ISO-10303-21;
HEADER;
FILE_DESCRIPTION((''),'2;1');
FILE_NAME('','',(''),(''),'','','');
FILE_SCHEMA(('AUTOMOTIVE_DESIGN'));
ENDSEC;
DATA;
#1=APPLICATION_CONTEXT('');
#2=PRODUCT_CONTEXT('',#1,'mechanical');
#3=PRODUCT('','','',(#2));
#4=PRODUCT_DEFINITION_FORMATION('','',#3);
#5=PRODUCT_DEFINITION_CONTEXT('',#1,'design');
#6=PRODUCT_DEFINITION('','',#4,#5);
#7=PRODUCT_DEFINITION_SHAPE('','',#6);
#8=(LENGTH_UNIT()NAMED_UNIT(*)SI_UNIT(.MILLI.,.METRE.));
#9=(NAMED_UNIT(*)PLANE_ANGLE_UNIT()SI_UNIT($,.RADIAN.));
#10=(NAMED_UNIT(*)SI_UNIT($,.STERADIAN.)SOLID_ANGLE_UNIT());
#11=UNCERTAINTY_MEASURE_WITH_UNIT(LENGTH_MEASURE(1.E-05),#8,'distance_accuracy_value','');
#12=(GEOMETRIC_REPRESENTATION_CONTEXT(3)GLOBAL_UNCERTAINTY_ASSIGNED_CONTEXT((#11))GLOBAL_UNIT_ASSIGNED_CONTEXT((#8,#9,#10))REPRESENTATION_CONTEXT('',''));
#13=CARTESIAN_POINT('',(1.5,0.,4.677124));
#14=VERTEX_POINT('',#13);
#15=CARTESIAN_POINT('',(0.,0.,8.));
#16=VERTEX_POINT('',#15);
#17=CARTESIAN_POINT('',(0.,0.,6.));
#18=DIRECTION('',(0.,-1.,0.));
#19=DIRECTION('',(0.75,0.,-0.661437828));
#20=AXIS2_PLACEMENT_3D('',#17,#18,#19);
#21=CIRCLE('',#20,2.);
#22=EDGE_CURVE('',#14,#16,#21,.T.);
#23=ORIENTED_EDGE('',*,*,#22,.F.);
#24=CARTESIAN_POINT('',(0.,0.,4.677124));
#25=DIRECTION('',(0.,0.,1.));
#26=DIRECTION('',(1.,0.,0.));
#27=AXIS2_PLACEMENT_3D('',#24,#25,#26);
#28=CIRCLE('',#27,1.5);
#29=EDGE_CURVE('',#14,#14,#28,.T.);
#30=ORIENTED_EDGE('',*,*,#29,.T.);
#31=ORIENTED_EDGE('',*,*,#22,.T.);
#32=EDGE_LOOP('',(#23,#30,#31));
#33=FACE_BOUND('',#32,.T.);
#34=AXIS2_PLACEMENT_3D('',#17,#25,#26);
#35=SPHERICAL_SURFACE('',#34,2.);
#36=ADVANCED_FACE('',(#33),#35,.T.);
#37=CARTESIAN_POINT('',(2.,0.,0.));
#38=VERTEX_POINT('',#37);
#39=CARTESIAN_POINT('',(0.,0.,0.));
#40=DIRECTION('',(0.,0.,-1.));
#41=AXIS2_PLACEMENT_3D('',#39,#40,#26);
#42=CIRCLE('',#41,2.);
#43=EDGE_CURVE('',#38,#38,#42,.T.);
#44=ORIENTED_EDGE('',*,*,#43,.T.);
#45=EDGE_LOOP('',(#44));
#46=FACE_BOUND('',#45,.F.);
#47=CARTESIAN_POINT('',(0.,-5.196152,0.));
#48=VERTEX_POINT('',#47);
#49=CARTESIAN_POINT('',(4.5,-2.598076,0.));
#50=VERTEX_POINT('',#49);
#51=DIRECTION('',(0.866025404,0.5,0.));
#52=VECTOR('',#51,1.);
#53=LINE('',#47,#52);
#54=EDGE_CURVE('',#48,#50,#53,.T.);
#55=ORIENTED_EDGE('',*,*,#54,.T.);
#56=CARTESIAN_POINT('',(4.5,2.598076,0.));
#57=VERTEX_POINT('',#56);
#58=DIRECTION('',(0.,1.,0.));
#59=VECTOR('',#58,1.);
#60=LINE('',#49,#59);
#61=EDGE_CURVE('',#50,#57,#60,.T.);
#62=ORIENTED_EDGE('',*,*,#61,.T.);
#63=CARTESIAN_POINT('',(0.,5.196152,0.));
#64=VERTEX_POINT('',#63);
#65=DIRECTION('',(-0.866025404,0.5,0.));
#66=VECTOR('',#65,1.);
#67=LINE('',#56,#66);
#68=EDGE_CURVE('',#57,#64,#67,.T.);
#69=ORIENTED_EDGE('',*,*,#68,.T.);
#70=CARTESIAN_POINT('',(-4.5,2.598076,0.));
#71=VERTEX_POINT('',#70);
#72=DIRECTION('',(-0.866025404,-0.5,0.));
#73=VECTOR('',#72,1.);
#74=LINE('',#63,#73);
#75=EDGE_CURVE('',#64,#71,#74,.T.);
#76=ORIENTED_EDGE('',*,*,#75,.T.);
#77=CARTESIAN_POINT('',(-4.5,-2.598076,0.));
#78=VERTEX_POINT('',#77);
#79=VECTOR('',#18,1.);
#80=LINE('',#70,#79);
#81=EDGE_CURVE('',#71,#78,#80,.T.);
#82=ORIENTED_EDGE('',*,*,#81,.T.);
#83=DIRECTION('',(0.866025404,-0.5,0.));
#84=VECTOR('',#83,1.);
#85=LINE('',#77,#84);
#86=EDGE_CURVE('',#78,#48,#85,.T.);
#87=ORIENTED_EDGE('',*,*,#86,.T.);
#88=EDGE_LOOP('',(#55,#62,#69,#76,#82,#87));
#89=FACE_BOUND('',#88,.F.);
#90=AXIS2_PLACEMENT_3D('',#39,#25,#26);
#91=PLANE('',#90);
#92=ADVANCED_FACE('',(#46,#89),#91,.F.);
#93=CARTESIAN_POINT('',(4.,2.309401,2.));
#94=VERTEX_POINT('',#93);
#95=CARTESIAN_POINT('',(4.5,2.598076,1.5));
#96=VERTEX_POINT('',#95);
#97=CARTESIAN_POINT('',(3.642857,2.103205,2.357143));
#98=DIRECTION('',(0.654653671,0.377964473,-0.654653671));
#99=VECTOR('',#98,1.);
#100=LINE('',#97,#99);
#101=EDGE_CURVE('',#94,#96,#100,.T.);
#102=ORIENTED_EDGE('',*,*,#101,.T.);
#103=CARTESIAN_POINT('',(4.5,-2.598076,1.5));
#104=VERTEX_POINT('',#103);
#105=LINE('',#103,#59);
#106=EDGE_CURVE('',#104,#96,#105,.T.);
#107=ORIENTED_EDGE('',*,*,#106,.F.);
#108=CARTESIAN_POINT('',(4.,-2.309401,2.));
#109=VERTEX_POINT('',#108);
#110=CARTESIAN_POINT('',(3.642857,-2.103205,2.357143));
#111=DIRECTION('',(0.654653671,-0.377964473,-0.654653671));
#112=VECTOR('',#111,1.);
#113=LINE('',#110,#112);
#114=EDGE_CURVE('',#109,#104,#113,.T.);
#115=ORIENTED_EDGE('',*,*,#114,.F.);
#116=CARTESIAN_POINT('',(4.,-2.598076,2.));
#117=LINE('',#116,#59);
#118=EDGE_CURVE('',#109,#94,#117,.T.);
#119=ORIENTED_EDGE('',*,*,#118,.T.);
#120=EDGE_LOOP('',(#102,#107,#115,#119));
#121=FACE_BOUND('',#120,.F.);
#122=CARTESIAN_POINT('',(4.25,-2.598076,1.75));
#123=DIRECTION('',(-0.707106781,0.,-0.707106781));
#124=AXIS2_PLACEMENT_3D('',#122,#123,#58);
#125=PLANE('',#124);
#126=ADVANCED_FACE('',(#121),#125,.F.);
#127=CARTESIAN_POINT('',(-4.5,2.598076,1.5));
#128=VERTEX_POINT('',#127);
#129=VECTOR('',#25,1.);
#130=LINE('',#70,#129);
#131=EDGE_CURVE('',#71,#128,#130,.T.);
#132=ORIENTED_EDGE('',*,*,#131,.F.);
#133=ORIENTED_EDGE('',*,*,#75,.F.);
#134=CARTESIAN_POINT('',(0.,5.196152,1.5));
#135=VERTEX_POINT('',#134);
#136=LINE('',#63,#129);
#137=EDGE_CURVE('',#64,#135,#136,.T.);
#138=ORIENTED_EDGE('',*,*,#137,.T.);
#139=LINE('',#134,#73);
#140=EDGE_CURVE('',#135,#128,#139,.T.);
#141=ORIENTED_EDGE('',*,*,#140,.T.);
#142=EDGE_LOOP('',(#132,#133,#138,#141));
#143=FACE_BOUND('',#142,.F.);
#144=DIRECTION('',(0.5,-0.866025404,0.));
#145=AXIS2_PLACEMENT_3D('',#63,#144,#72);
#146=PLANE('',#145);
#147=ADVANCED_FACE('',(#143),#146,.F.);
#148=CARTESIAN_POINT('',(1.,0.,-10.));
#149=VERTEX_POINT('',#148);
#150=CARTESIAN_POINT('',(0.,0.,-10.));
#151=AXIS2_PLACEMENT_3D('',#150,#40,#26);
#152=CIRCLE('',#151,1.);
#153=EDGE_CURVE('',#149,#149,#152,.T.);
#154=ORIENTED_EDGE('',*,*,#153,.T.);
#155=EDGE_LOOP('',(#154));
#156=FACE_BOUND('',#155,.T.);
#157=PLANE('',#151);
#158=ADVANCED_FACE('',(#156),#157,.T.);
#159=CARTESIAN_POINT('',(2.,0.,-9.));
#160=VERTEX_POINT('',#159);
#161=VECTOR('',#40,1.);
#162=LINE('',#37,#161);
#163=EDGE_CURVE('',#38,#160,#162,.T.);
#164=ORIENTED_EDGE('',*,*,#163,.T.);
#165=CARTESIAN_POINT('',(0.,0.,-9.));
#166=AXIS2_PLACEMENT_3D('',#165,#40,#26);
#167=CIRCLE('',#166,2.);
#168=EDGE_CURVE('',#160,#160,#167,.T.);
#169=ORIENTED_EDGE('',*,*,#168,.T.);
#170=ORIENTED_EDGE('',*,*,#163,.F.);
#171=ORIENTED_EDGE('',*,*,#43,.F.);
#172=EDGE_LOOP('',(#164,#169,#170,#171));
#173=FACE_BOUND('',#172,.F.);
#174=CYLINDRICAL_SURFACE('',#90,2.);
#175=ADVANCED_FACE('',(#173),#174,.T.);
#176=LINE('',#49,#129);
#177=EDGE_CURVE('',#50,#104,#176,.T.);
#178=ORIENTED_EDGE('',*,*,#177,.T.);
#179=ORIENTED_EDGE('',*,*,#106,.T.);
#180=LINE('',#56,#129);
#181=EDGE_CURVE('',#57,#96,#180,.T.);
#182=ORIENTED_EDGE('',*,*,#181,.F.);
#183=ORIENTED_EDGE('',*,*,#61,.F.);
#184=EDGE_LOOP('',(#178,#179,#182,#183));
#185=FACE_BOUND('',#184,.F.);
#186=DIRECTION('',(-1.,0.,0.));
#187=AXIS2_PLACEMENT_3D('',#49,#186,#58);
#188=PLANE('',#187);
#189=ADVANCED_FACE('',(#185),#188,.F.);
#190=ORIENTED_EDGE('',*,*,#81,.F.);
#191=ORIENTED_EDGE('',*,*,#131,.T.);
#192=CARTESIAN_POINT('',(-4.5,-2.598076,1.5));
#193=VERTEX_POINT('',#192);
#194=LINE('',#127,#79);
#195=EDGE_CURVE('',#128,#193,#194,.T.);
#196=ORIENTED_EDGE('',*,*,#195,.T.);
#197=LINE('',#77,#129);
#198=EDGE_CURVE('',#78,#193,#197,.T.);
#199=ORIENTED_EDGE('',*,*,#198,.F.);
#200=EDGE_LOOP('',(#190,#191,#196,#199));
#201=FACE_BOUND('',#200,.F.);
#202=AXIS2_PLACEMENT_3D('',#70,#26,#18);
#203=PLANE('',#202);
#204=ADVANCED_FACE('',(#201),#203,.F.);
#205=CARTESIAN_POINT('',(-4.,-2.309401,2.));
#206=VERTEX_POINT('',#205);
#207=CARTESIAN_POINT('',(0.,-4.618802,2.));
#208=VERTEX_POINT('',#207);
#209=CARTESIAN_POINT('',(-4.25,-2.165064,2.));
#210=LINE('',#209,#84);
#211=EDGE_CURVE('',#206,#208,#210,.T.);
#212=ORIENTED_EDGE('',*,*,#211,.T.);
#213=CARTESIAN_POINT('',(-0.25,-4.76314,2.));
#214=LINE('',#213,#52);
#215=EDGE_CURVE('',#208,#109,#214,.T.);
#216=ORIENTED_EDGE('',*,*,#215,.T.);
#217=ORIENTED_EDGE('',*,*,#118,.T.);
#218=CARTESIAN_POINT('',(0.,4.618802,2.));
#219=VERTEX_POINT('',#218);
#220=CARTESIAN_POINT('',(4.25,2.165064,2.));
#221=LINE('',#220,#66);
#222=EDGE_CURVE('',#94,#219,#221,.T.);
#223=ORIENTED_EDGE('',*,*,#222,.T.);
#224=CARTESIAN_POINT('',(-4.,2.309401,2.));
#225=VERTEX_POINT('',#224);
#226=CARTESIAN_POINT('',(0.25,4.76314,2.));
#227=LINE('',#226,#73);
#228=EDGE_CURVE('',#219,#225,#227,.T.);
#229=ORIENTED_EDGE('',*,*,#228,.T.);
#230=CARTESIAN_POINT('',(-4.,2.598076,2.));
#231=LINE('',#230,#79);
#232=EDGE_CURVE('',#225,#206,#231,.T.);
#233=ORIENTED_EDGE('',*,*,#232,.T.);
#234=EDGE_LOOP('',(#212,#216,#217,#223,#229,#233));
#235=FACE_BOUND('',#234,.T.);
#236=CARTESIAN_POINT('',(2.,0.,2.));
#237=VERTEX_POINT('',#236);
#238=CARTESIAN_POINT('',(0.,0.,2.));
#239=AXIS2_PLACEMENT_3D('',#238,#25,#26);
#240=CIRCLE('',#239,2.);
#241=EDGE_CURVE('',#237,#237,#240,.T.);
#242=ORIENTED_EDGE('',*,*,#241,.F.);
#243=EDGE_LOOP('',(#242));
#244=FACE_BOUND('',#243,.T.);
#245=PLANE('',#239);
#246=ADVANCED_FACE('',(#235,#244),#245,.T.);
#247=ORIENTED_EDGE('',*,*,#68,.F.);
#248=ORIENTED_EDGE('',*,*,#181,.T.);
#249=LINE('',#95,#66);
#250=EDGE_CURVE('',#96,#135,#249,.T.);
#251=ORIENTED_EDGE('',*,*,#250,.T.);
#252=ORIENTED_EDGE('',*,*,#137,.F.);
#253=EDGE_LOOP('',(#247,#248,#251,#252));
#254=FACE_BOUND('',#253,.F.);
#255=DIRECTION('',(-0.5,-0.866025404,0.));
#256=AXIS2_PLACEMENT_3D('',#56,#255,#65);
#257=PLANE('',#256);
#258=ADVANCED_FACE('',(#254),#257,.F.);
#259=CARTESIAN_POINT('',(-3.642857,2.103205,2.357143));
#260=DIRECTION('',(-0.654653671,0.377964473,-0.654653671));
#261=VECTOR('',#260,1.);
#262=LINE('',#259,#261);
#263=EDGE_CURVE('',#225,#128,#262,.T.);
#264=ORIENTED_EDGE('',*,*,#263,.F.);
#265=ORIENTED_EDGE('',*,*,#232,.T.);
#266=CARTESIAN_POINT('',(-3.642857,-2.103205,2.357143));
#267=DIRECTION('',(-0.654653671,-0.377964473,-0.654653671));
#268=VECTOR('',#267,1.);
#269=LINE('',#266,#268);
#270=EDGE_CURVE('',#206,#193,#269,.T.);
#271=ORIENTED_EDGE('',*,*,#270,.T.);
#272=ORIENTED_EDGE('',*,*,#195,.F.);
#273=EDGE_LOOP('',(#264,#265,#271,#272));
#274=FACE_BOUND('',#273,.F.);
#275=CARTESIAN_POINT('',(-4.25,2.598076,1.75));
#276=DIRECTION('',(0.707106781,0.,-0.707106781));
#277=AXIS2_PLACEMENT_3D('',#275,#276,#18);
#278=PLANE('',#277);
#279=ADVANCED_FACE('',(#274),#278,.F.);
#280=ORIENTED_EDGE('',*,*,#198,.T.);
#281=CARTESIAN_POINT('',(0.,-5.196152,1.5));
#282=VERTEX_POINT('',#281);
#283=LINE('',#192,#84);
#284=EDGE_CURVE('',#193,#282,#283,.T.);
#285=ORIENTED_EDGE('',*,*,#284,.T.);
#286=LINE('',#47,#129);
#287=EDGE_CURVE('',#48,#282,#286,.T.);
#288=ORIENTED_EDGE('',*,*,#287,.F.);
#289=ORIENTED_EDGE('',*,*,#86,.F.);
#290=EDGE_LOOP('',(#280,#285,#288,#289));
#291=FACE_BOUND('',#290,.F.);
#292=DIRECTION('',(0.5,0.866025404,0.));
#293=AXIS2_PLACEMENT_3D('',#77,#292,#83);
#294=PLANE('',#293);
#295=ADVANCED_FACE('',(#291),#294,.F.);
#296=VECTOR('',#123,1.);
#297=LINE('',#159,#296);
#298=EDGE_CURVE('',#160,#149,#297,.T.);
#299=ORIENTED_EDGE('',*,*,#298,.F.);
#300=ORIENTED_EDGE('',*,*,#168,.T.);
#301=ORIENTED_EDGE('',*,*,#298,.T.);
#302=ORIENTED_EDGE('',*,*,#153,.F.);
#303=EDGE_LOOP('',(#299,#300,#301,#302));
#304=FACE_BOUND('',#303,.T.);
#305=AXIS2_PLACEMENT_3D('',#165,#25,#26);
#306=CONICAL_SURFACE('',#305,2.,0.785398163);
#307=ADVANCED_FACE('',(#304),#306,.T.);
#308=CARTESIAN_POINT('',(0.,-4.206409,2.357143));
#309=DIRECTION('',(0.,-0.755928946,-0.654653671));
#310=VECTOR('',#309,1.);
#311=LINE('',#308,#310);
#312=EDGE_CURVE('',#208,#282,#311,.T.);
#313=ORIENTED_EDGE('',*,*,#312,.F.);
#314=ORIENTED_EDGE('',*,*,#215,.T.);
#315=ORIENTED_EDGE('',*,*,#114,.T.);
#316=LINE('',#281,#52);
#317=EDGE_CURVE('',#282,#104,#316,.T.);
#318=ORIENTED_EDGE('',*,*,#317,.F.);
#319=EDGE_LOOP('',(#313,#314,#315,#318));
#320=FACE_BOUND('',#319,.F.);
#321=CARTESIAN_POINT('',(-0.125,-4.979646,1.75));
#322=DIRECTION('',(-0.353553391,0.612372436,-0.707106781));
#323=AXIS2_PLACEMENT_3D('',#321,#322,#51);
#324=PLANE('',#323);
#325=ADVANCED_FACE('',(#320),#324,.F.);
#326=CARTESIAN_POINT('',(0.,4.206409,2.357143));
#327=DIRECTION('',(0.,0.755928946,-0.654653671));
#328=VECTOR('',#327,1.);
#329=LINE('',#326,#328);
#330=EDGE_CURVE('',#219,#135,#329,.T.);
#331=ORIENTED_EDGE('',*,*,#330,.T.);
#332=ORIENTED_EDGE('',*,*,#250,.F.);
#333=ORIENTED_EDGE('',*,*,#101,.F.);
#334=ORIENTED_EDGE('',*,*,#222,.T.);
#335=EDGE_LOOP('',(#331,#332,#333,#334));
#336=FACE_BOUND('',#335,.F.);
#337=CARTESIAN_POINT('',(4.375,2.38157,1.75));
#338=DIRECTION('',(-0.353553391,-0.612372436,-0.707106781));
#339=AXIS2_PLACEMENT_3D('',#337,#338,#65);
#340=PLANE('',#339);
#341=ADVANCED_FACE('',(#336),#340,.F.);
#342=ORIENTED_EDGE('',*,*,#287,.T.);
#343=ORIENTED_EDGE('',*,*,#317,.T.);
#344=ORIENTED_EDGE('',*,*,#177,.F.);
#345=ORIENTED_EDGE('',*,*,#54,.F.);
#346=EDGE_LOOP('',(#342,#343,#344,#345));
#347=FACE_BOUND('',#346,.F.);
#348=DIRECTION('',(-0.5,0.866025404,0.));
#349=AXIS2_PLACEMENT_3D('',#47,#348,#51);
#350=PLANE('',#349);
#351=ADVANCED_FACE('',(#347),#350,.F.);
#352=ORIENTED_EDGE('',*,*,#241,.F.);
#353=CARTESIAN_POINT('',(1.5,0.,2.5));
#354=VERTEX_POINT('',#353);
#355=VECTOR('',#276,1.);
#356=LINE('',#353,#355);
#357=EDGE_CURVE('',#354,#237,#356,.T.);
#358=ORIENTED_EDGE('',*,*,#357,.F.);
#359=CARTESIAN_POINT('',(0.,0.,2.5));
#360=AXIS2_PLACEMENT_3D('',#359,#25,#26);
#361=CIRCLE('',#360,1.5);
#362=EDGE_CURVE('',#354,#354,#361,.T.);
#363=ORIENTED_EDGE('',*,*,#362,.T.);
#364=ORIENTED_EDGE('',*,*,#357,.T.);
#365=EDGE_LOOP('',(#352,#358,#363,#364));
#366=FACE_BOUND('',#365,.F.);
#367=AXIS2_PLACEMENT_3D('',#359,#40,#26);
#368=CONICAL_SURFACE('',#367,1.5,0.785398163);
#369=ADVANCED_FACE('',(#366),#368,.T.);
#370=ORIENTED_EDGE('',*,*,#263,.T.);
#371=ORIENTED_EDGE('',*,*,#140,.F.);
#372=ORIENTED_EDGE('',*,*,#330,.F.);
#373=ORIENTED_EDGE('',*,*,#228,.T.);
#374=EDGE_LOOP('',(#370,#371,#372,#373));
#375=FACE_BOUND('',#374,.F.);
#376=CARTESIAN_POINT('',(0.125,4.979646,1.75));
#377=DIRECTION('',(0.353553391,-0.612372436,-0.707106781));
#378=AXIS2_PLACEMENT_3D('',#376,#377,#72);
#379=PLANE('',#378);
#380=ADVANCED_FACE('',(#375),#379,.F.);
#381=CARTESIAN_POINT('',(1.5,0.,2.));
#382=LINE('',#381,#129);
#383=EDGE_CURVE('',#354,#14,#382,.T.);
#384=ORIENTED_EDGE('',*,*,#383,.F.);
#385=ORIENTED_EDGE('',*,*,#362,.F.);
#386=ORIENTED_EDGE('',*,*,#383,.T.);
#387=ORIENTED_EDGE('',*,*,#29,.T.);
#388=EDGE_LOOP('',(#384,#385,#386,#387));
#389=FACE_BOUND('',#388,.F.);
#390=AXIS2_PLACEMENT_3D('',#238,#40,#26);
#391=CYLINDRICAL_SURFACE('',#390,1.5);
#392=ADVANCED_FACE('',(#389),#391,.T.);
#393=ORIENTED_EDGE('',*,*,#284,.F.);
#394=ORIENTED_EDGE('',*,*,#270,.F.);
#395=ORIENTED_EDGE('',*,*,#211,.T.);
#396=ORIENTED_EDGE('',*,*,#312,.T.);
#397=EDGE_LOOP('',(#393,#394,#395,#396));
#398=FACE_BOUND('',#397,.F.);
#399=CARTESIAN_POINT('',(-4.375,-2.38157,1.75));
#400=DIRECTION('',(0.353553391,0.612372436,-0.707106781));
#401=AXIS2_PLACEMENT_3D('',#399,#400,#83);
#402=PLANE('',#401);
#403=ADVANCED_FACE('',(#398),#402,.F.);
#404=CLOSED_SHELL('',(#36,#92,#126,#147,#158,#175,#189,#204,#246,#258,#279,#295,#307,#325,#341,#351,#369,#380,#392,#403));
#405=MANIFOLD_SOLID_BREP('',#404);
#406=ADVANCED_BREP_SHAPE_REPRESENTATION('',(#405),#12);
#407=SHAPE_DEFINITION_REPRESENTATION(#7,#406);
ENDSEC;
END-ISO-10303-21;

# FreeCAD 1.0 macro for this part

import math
import FreeCAD as App
import Part
import Sketcher
from FreeCAD import Vector
Q = App.Units.Quantity


def edges_at(feature, points):
    """Names of the edges that pass closest to the given points."""
    edges = feature.Shape.Edges
    near = lambda p: min(range(len(edges)), key=lambda i: edges[i].distToShape(Part.Vertex(*p))[0])
    return sorted({f"Edge{near(p) + 1}" for p in points})


def add_polygon(sketch, points):
    """Adds a closed chain of lines whose ends are joined by coincident constraints."""
    first, n = sketch.GeometryCount, len(points)
    for a, b in zip(points, points[1:] + points[:1]):
        sketch.addGeometry(Part.LineSegment(App.Vector(*a, 0), App.Vector(*b, 0)), False)
    for i in range(n):
        sketch.addConstraint(Sketcher.Constraint("Coincident", first + i, 2, first + (i + 1) % n, 1))

doc = App.newDocument("Part")
params = doc.addObject("Spreadsheet::Sheet", "Params")
for row, (alias, value) in enumerate([
    ("pad1_length", "2 mm"),
    ("sketch2_diameter", "4 mm"),
    ("pad2_length", "10 mm"),
    ("chamfer_size", "1 mm"),
    ("sketch3_diameter", "3 mm"),
    ("pad3_length", "3 mm"),
    ("sketch4_radius", "2 mm"),
    ("sketch4_height", "3 mm"),
    ("sketch4_width", "1.5 mm"),
    ("revolution_angle", "360 deg"),
    ("chamfer2_size", "0.5 mm"),
], start=1):
    params.set(f"A{row}", alias)
    params.set(f"B{row}", "=" + value)
    params.setAlias(f"B{row}", alias)

body = doc.addObject("PartDesign::Body", "Body")

sketch1 = body.newObject("Sketcher::SketchObject", "Sketch")
sketch1.AttachmentSupport = (doc.getObject("XY_Plane"), [""])
sketch1.MapMode = "FlatFace"
add_polygon(sketch1, [(4, -3), (4, 3), (0, 5), (-4, 3), (-4, -3), (0, -5)])
sketch1.addConstraint(Sketcher.Constraint("Vertical", 0))
sketch1.addConstraint(Sketcher.Constraint("Vertical", 3))
sketch1.addConstraint(Sketcher.Constraint("Symmetric", 0, 2, 3, 2, -1, 1))
sketch1.addConstraint(Sketcher.Constraint("Symmetric", 1, 2, 4, 2, -1, 1))
sketch1.addConstraint(Sketcher.Constraint("PointOnObject", 1, 2, -2))
sketch1.addConstraint(Sketcher.Constraint("Parallel", 2, 5))
sketch1.addConstraint(Sketcher.Constraint("Horizontal", 0, 2, 2, 2))
sketch1.addConstraint(Sketcher.Constraint("Angle", 1, Q("150 deg")))
sketch1.addConstraint(Sketcher.Constraint("DistanceX", 2, 2, 0, 2, 9.0))
sketch1.addConstraint(Sketcher.Constraint("DistanceY", 0, 1, 0, 2, 5.196152))
pad1 = body.newObject("PartDesign::Pad", "Pad")
pad1.Profile = sketch1
pad1.setExpression("Length", "Params.pad1_length")

sketch2 = body.newObject("Sketcher::SketchObject", "Sketch001")
sketch2.AttachmentSupport = (doc.getObject("XY_Plane"), [""])
sketch2.MapMode = "FlatFace"
sketch2.addGeometry(Part.Circle(Vector(0, 0, 0), Vector(0, 0, 1), 2), False)
sketch2.addConstraint(Sketcher.Constraint("Coincident", 0, 3, -1, 1))
sketch2.addConstraint(Sketcher.Constraint("Diameter", 0, 4.0))
sketch2.setExpression("Constraints[1]", "Params.sketch2_diameter")
pad2 = body.newObject("PartDesign::Pad", "Pad001")
pad2.Profile = sketch2
pad2.setExpression("Length", "Params.pad2_length")
pad2.Reversed = True
doc.recompute()

chamfer = body.newObject("PartDesign::Chamfer", "Chamfer")
chamfer.Base = (pad2, edges_at(pad2, [(-2, 0, -10)]))
chamfer.setExpression("Size", "Params.chamfer_size")

sketch3 = body.newObject("Sketcher::SketchObject", "Sketch002")
sketch3.AttachmentSupport = (doc.getObject("XY_Plane"), [""])
sketch3.MapMode = "FlatFace"
sketch3.AttachmentOffset = App.Placement(Vector(0, 0, 2), App.Rotation())
sketch3.addGeometry(Part.Circle(Vector(0, 0, 0), Vector(0, 0, 1), 1.5), False)
sketch3.addConstraint(Sketcher.Constraint("Coincident", 0, 3, -1, 1))
sketch3.addConstraint(Sketcher.Constraint("Diameter", 0, 3.0))
sketch3.setExpression("Constraints[1]", "Params.sketch3_diameter")
pad3 = body.newObject("PartDesign::Pad", "Pad002")
pad3.Profile = sketch3
pad3.setExpression("Length", "Params.pad3_length")

sketch4 = body.newObject("Sketcher::SketchObject", "Sketch003")
sketch4.AttachmentSupport = (doc.getObject("XZ_Plane"), [""])
sketch4.MapMode = "FlatFace"
sketch4.addGeometry(Part.LineSegment(Vector(1.5, 5, 0), Vector(1.5, 4.68, 0)), False)
sketch4.addGeometry(Part.ArcOfCircle(Part.Circle(Vector(0, 6, 0), Vector(0, 0, 1), 2), math.radians(-41), math.radians(90)), False)
sketch4.addGeometry(Part.LineSegment(Vector(0, 8, 0), Vector(0, 5, 0)), False)
sketch4.addGeometry(Part.LineSegment(Vector(0, 5, 0), Vector(1.5, 5, 0)), False)
sketch4.addConstraint(Sketcher.Constraint("Coincident", 0, 2, 1, 1))
sketch4.addConstraint(Sketcher.Constraint("Coincident", 1, 2, 2, 1))
sketch4.addConstraint(Sketcher.Constraint("Coincident", 2, 2, 3, 1))
sketch4.addConstraint(Sketcher.Constraint("Coincident", 3, 2, 0, 1))
sketch4.addConstraint(Sketcher.Constraint("Vertical", 0))
sketch4.addConstraint(Sketcher.Constraint("Vertical", 2))
sketch4.addConstraint(Sketcher.Constraint("Horizontal", 3))
sketch4.addConstraint(Sketcher.Constraint("PointOnObject", 1, 3, -2))
sketch4.addConstraint(Sketcher.Constraint("PointOnObject", 1, 2, -2))
sketch4.addConstraint(Sketcher.Constraint("Radius", 1, 2.0))
sketch4.addConstraint(Sketcher.Constraint("DistanceY", 2, 2, 2, 1, 3.0))
sketch4.addConstraint(Sketcher.Constraint("DistanceX", 3, 1, 3, 2, 1.5))
sketch4.addConstraint(Sketcher.Constraint("DistanceY", -1, 1, 1, 3, 6.0))
sketch4.setExpression("Constraints[9]", "Params.sketch4_radius")
sketch4.setExpression("Constraints[10]", "Params.sketch4_height")
sketch4.setExpression("Constraints[11]", "Params.sketch4_width")
revolution = body.newObject("PartDesign::Revolution", "Revolution")
revolution.Profile = sketch4
revolution.ReferenceAxis = (sketch4, ["V_Axis"])
revolution.setExpression("Angle", "Params.revolution_angle")
doc.recompute()

chamfer2 = body.newObject("PartDesign::Chamfer", "Chamfer001")
chamfer2.Base = (revolution, edges_at(revolution, [
    (2.25, -3.897, 2),
    (4.5, 0, 2),
    (2.25, 3.897, 2),
    (-2.25, 3.897, 2),
    (-2.25, -3.897, 2),
    (-4.5, 0, 2),
    (-1.5, 0, 2),
]))
chamfer2.setExpression("Size", "Params.chamfer2_size")

doc.recompute()
